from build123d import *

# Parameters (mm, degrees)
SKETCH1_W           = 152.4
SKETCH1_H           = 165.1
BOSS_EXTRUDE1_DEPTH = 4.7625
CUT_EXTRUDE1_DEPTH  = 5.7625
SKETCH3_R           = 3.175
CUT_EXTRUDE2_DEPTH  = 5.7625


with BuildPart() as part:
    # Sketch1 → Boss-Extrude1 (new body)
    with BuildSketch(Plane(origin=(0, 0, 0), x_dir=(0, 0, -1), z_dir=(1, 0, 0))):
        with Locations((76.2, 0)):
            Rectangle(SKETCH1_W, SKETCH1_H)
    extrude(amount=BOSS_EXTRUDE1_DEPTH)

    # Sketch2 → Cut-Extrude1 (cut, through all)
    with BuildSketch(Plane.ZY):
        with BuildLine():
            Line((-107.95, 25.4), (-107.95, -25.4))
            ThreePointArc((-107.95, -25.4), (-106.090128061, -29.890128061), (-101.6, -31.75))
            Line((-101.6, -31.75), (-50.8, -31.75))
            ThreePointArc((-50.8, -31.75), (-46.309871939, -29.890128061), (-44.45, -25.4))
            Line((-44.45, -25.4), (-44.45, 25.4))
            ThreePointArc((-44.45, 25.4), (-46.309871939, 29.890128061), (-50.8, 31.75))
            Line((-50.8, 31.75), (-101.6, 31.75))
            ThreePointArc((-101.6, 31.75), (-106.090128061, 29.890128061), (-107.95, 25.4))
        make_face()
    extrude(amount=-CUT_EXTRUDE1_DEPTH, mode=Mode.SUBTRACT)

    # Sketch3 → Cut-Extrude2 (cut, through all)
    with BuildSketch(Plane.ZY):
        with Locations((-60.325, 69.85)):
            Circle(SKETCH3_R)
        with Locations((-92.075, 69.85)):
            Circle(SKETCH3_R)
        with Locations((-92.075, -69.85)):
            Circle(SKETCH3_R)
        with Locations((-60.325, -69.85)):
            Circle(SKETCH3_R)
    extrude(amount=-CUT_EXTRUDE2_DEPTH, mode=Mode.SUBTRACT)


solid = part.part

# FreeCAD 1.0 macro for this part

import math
import FreeCAD as App
import Part
import Sketcher

V = App.Vector
Q = App.Units.Quantity


def add_polygon(sketch, points):
    """Adds a closed chain of lines whose ends are joined by coincident constraints."""
    first, n = sketch.GeometryCount, len(points)
    for a, b in zip(points, points[1:] + points[:1]):
        sketch.addGeometry(Part.LineSegment(App.Vector(*a, 0), App.Vector(*b, 0)), False)
    for i in range(n):
        sketch.addConstraint(Sketcher.Constraint("Coincident", first + i, 2, first + (i + 1) % n, 1))

doc = App.newDocument("Part")
params = doc.addObject("Spreadsheet::Sheet", "Params")
for row, (alias, value) in enumerate([
    ("sketch1_height", "6 in"),
    ("sketch1_width", "6.5 in"),
    ("pad1_length", "0.1875 in"),
    ("sketch2_width", "2 in"),
    ("sketch2_radius", "0.25 in"),
    ("sketch3_diameter", "0.25 in"),
], start=1):
    params.set(f"A{row}", alias)
    params.set(f"B{row}", "=" + value)
    params.setAlias(f"B{row}", alias)

body = doc.addObject("PartDesign::Body", "Body")

# Sketch on YZ plane
sketch1 = doc.addObject("Sketcher::SketchObject", "Sketch")
body.addObject(sketch1)
sketch1.AttachmentSupport = (doc.YZ_Plane, [""])
sketch1.MapMode = "FlatFace"
add_polygon(sketch1, [(83, 0), (-83, 0), (-83, -152), (83, -152)])  # lines 0-3
sketch1.addConstraint([
    Sketcher.Constraint("Horizontal", 0),
    Sketcher.Constraint("Vertical", 1),
    Sketcher.Constraint("Horizontal", 2),
    Sketcher.Constraint("Vertical", 3),
    Sketcher.Constraint("Symmetric", 0, 2, 3, 2, -1, 1),
    Sketcher.Constraint("DistanceY", 1, 2, 1, 1, Q("6 in")),
    Sketcher.Constraint("DistanceX", 0, 2, 0, 1, Q("6.5 in")),
])
sketch1.setExpression("Constraints[9]", "Params.sketch1_height")
sketch1.setExpression("Constraints[10]", "Params.sketch1_width")
pad1 = doc.addObject("PartDesign::Pad", "Pad")
body.addObject(pad1)
pad1.Profile = sketch1
pad1.setExpression("Length", "Params.pad1_length")

# Sketch on YZ plane
sketch2 = doc.addObject("Sketcher::SketchObject", "Sketch001")
body.addObject(sketch2)
sketch2.AttachmentSupport = (doc.YZ_Plane, [""])
sketch2.MapMode = "FlatFace"
sketch2.addGeometry([
    Part.LineSegment(V(25, -108, 0), V(-25, -108, 0)),  # 0
    Part.ArcOfCircle(Part.Circle(V(-25, -102, 0), V(0, 0, 1), 6), math.radians(180), math.radians(270)),  # 1
    Part.LineSegment(V(-32, -102, 0), V(-32, -51, 0)),  # 2
    Part.ArcOfCircle(Part.Circle(V(-25, -51, 0), V(0, 0, 1), 6), math.radians(90), math.radians(180)),  # 3
    Part.LineSegment(V(-25, -44, 0), V(25, -44, 0)),  # 4
    Part.ArcOfCircle(Part.Circle(V(25, -51, 0), V(0, 0, 1), 6), math.radians(0), math.radians(90)),  # 5
    Part.LineSegment(V(32, -51, 0), V(32, -102, 0)),  # 6
    Part.ArcOfCircle(Part.Circle(V(25, -102, 0), V(0, 0, 1), 6), math.radians(-90), math.radians(0)),  # 7
], False)
sketch2.addConstraint([
    Sketcher.Constraint("Tangent", 0, 2, 1, 2),
    Sketcher.Constraint("Tangent", 1, 1, 2, 1),
    Sketcher.Constraint("Tangent", 2, 2, 3, 2),
    Sketcher.Constraint("Tangent", 3, 1, 4, 1),
    Sketcher.Constraint("Tangent", 4, 2, 5, 2),
    Sketcher.Constraint("Tangent", 5, 1, 6, 1),
    Sketcher.Constraint("Tangent", 6, 2, 7, 2),
    Sketcher.Constraint("Tangent", 7, 1, 0, 1),
    Sketcher.Constraint("Horizontal", 0),
    Sketcher.Constraint("Vertical", 2),
    Sketcher.Constraint("Horizontal", 4),
    Sketcher.Constraint("Vertical", 6),
    Sketcher.Constraint("Equal", 1, 3),
    Sketcher.Constraint("Equal", 3, 5),
    Sketcher.Constraint("Equal", 5, 7),
    Sketcher.Constraint("Equal", 4, 2),
    Sketcher.Constraint("DistanceX", 0, 2, 0, 1, Q("2 in")),
    Sketcher.Constraint("Radius", 1, Q("0.25 in")),
    Sketcher.Constraint("DistanceX", 1, 3, -1, 1, Q("1 in")),
    Sketcher.Constraint("DistanceY", 1, 3, -1, 1, Q("4 in")),
])
sketch2.setExpression("Constraints[16]", "Params.sketch2_width")
sketch2.setExpression("Constraints[17]", "Params.sketch2_radius")
pocket1 = doc.addObject("PartDesign::Pocket", "Pocket")
body.addObject(pocket1)
pocket1.Profile = sketch2
pocket1.Type = "ThroughAll"
pocket1.Reversed = True

# Sketch on YZ plane
sketch3 = doc.addObject("Sketcher::SketchObject", "Sketch002")
body.addObject(sketch3)
sketch3.AttachmentSupport = (doc.YZ_Plane, [""])
sketch3.MapMode = "FlatFace"
sketch3.addGeometry([
    Part.Circle(V(69.8, -60.3, 0), V(0, 0, 1), 3.2),
    Part.Circle(V(69.8, -92.1, 0), V(0, 0, 1), 3.2),
    Part.Circle(V(-69.8, -92.1, 0), V(0, 0, 1), 3.2),
    Part.Circle(V(-69.8, -60.3, 0), V(0, 0, 1), 3.2),
], False)
sketch3.addConstraint([
    Sketcher.Constraint("Equal", 0, 1),
    Sketcher.Constraint("Equal", 1, 2),
    Sketcher.Constraint("Equal", 2, 3),
    Sketcher.Constraint("Symmetric", 1, 3, 2, 3, -2),
    Sketcher.Constraint("Symmetric", 0, 3, 3, 3, -2),
    Sketcher.Constraint("Vertical", 0, 3, 1, 3),
    Sketcher.Constraint("Diameter", 0, Q("0.25 in")),
    Sketcher.Constraint("DistanceX", 2, 3, 1, 3, Q("5.5 in")),
    Sketcher.Constraint("DistanceY", 1, 3, 0, 3, Q("1.25 in")),
    Sketcher.Constraint("DistanceY", 0, 3, -1, 1, Q("2.375 in")),
])
sketch3.setExpression("Constraints[6]", "Params.sketch3_diameter")
pocket2 = doc.addObject("PartDesign::Pocket", "Pocket001")
body.addObject(pocket2)
pocket2.Profile = sketch3
pocket2.Type = "ThroughAll"
pocket2.Reversed = True

doc.recompute()
